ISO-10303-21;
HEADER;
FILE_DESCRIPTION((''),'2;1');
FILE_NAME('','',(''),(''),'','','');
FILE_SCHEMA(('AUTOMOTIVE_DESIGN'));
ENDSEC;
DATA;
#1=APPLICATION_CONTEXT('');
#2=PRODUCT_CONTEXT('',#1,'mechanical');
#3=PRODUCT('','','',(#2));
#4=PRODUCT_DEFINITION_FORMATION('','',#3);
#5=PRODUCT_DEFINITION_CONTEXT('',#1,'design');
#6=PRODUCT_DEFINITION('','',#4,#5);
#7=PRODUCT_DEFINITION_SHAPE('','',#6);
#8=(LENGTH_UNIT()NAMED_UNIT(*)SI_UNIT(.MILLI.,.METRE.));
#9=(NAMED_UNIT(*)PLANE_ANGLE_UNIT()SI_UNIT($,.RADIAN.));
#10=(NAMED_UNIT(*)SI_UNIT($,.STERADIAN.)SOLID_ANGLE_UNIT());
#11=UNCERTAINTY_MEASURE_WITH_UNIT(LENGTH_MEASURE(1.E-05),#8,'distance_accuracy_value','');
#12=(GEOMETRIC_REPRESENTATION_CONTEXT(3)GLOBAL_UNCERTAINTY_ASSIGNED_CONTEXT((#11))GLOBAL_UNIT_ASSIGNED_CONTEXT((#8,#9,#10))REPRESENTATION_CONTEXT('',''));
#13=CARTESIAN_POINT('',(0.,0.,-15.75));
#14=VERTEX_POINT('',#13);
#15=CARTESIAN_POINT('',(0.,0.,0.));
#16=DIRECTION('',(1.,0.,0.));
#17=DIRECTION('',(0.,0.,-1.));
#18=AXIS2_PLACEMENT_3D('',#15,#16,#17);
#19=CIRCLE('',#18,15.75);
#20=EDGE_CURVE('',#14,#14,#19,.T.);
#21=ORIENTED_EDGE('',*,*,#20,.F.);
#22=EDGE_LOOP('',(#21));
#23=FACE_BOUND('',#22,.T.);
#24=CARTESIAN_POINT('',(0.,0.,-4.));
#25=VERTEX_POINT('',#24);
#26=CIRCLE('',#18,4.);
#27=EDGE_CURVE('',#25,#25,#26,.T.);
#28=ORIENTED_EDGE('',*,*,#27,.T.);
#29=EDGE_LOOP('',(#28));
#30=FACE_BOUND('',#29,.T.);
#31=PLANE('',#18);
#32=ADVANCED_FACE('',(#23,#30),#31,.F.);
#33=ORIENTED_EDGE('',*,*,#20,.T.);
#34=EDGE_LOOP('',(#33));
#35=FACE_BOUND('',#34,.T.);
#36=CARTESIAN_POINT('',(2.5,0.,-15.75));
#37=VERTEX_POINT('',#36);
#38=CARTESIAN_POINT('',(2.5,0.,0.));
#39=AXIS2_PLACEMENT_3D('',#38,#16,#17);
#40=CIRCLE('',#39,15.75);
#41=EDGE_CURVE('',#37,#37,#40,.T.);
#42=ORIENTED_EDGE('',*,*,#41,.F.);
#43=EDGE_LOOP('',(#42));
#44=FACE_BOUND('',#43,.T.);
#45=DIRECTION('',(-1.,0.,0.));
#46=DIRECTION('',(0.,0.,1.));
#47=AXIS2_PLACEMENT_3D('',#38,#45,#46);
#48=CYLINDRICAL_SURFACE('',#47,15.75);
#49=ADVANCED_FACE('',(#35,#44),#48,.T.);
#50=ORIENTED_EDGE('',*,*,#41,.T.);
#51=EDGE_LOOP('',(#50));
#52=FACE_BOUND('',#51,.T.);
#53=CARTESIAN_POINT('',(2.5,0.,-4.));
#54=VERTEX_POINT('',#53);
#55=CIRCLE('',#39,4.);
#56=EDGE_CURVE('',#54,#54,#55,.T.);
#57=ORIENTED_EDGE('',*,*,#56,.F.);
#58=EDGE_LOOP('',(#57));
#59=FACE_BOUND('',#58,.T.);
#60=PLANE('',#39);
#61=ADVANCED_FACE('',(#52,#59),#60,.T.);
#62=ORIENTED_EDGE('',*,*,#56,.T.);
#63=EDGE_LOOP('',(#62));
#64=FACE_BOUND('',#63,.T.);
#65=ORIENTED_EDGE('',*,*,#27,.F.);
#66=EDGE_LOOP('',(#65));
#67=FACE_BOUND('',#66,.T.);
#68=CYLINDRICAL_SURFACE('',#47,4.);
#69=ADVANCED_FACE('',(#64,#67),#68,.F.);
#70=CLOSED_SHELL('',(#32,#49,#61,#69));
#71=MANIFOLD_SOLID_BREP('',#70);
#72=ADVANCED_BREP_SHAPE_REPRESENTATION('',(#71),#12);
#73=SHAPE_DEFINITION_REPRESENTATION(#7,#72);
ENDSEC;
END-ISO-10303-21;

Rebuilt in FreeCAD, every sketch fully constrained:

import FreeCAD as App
import Part
import Sketcher

V = App.Vector

doc = App.newDocument("Part")
body = doc.addObject("PartDesign::Body", "Body")

# Sketch on YZ plane
sketch1 = body.newObject("Sketcher::SketchObject", "Sketch")
sketch1.AttachmentSupport = (doc.getObject("YZ_Plane"), [""])
sketch1.MapMode = "FlatFace"
sketch1.addGeometry([
    Part.Circle(V(0, 0, 0), V(0, 0, 1), 15.75),
    Part.Circle(V(0, 0, 0), V(0, 0, 1), 4),
], False)
sketch1.addConstraint([
    Sketcher.Constraint("Coincident", 0, 3, -1, 1),
    Sketcher.Constraint("Coincident", 1, 3, -1, 1),
    Sketcher.Constraint("Diameter", 1, 8.0),
    Sketcher.Constraint("Diameter", 0, 31.5),
])
pad1 = body.newObject("PartDesign::Pad", "Pad")
pad1.Profile = sketch1
pad1.Length = 2.5

doc.recompute()
